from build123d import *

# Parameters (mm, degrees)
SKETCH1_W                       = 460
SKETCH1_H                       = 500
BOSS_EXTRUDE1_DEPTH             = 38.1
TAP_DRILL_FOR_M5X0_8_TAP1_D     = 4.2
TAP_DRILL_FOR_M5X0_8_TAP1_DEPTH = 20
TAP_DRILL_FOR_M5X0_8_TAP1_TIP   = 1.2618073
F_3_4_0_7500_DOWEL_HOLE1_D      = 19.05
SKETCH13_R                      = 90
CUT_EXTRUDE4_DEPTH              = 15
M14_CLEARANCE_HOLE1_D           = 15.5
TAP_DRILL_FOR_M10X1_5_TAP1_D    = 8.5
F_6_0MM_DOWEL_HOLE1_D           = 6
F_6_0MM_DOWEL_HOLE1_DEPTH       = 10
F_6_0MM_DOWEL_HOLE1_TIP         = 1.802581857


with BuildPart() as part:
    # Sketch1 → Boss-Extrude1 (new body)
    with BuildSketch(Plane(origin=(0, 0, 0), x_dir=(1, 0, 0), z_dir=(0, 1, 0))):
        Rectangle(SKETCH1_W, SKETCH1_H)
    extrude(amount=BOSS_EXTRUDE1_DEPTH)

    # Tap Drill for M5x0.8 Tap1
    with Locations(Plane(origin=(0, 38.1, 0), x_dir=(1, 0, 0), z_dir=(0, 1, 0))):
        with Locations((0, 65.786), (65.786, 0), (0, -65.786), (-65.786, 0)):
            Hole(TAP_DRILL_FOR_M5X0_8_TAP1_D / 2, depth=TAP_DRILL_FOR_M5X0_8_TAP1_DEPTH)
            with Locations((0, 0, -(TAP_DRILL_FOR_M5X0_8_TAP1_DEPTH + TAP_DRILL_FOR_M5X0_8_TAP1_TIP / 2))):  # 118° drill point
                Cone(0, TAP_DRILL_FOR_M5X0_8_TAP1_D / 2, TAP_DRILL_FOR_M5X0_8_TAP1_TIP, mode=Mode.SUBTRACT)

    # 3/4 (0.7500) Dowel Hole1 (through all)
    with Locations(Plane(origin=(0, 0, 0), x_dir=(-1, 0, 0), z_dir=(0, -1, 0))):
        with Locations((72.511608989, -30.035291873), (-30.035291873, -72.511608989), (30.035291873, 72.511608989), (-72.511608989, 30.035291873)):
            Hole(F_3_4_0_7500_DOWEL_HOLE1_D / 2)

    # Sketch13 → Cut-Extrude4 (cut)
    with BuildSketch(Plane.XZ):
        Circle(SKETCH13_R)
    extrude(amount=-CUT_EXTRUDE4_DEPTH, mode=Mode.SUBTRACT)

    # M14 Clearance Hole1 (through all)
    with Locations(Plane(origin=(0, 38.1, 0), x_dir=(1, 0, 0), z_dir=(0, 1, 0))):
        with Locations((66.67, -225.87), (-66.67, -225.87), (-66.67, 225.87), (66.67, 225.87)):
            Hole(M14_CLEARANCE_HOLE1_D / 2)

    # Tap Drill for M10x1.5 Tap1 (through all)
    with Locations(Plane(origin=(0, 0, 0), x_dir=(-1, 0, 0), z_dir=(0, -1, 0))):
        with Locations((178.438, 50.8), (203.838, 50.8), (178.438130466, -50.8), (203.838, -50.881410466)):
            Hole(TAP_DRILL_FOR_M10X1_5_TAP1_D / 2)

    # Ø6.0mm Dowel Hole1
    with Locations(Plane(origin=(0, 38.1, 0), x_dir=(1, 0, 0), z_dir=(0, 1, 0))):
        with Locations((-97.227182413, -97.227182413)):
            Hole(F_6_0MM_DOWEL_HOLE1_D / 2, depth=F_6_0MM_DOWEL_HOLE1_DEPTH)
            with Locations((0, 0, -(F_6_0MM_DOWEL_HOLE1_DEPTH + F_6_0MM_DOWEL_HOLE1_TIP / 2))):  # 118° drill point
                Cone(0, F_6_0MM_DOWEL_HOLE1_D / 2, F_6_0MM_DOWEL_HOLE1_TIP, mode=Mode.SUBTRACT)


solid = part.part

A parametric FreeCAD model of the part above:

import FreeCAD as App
import Part
import Sketcher
Q = App.Units.Quantity

doc = App.newDocument("Part")
body = doc.addObject("PartDesign::Body", "Body")

# Sketch on XZ plane
sketch1 = body.newObject("Sketcher::SketchObject", "Sketch")
sketch1.AttachmentSupport = (doc.getObject("XZ_Plane"), [""])
sketch1.MapMode = "FlatFace"
sketch1.addGeometry(Part.LineSegment(App.Vector(-230, -250, 0), App.Vector(-230, 250, 0)), False)
sketch1.addGeometry(Part.LineSegment(App.Vector(-230, 250, 0), App.Vector(230, 250, 0)), False)
sketch1.addGeometry(Part.LineSegment(App.Vector(230, 250, 0), App.Vector(230, -250, 0)), False)
sketch1.addGeometry(Part.LineSegment(App.Vector(230, -250, 0), App.Vector(-230, -250, 0)), False)
sketch1.addConstraint(Sketcher.Constraint("Coincident", 0, 2, 1, 1))
sketch1.addConstraint(Sketcher.Constraint("Coincident", 1, 2, 2, 1))
sketch1.addConstraint(Sketcher.Constraint("Coincident", 2, 2, 3, 1))
sketch1.addConstraint(Sketcher.Constraint("Coincident", 3, 2, 0, 1))
sketch1.addConstraint(Sketcher.Constraint("Vertical", 0))
sketch1.addConstraint(Sketcher.Constraint("Horizontal", 1))
sketch1.addConstraint(Sketcher.Constraint("Vertical", 2))
sketch1.addConstraint(Sketcher.Constraint("Horizontal", 3))
sketch1.addConstraint(Sketcher.Constraint("Symmetric", 0, 2, 2, 2, -1, 1))
sketch1.addConstraint(Sketcher.Constraint("DistanceX", 1, 1, 1, 2, Q("460 mm")))
sketch1.addConstraint(Sketcher.Constraint("DistanceY", 0, 1, 0, 2, Q("500 mm")))
pad1 = body.newObject("PartDesign::Pad", "Pad")
pad1.Profile = sketch1
pad1.Length = 38.1
pad1.Reversed = True

# Sketch on XZ plane
sketch2 = body.newObject("Sketcher::SketchObject", "Sketch001")
sketch2.AttachmentSupport = (doc.getObject("XZ_Plane"), [""])
sketch2.MapMode = "FlatFace"
sketch2.AttachmentOffset = App.Placement(App.Vector(0, 0, -38.1), App.Rotation())
sketch2.addGeometry(Part.Circle(App.Vector(0, -65.8, 0), App.Vector(0, 0, 1), 2.1), False)
sketch2.addGeometry(Part.Circle(App.Vector(65.8, 0, 0), App.Vector(0, 0, 1), 2.1), False)
sketch2.addGeometry(Part.Circle(App.Vector(0, 65.8, 0), App.Vector(0, 0, 1), 2.1), False)
sketch2.addGeometry(Part.Circle(App.Vector(-65.8, 0, 0), App.Vector(0, 0, 1), 2.1), False)
sketch2.addConstraint(Sketcher.Constraint("Equal", 0, 1))
sketch2.addConstraint(Sketcher.Constraint("Equal", 1, 2))
sketch2.addConstraint(Sketcher.Constraint("Equal", 2, 3))
sketch2.addConstraint(Sketcher.Constraint("Symmetric", 0, 3, 2, 3, -1, 1))
sketch2.addConstraint(Sketcher.Constraint("Symmetric", 1, 3, 3, 3, -1, 1))
sketch2.addConstraint(Sketcher.Constraint("PointOnObject", 0, 3, -2))
sketch2.addConstraint(Sketcher.Constraint("PointOnObject", 1, 3, -1))
sketch2.addConstraint(Sketcher.Constraint("Diameter", 0, Q("4.2 mm")))
sketch2.addConstraint(Sketcher.Constraint("DistanceY", 0, 3, -1, 1, Q("65.786 mm")))
sketch2.addConstraint(Sketcher.Constraint("DistanceX", -1, 1, 1, 3, Q("65.786 mm")))
doc.recompute()
hole = body.newObject("PartDesign::Hole", "Hole")
hole.Profile = sketch2
hole.ThreadType = "None"
hole.Diameter = 4.2
hole.DepthType = "Dimension"
hole.Depth = 20
hole.DrillPoint = "Angled"
hole.DrillPointAngle = 118
hole.Reversed = True

# Sketch on XZ plane
sketch3 = body.newObject("Sketcher::SketchObject", "Sketch002")
sketch3.AttachmentSupport = (doc.getObject("XZ_Plane"), [""])
sketch3.MapMode = "FlatFace"
sketch3.addGeometry(Part.Circle(App.Vector(-73, 30, 0), App.Vector(0, 0, 1), 10), False)
sketch3.addGeometry(Part.Circle(App.Vector(30, 73, 0), App.Vector(0, 0, 1), 10), False)
sketch3.addGeometry(Part.Circle(App.Vector(-30, -73, 0), App.Vector(0, 0, 1), 10), False)
sketch3.addGeometry(Part.Circle(App.Vector(73, -30, 0), App.Vector(0, 0, 1), 10), False)
sketch3.addConstraint(Sketcher.Constraint("Equal", 0, 1))
sketch3.addConstraint(Sketcher.Constraint("Equal", 1, 2))
sketch3.addConstraint(Sketcher.Constraint("Equal", 2, 3))
sketch3.addConstraint(Sketcher.Constraint("Symmetric", 1, 3, 2, 3, -1, 1))
sketch3.addConstraint(Sketcher.Constraint("Symmetric", 0, 3, 3, 3, -1, 1))
sketch3.addConstraint(Sketcher.Constraint("Diameter", 0, Q("19.05 mm")))
sketch3.addConstraint(Sketcher.Constraint("DistanceX", 0, 3, 1, 3, Q("102.546901 mm")))
sketch3.addConstraint(Sketcher.Constraint("DistanceY", 2, 3, 0, 3, Q("102.546901 mm")))
sketch3.addConstraint(Sketcher.Constraint("DistanceX", 0, 3, -1, 1, Q("72.511609 mm")))
sketch3.addConstraint(Sketcher.Constraint("DistanceY", -1, 1, 0, 3, Q("30.035292 mm")))
doc.recompute()
hole2 = body.newObject("PartDesign::Hole", "Hole001")
hole2.Profile = sketch3
hole2.ThreadType = "None"
hole2.Diameter = 19.05
hole2.DepthType = "ThroughAll"

# Sketch on XZ plane
sketch4 = body.newObject("Sketcher::SketchObject", "Sketch003")
sketch4.AttachmentSupport = (doc.getObject("XZ_Plane"), [""])
sketch4.MapMode = "FlatFace"
sketch4.addGeometry(Part.Circle(App.Vector(0, 0, 0), App.Vector(0, 0, 1), 90), False)
sketch4.addConstraint(Sketcher.Constraint("Coincident", 0, 3, -1, 1))
sketch4.addConstraint(Sketcher.Constraint("Diameter", 0, Q("180 mm")))
pocket1 = body.newObject("PartDesign::Pocket", "Pocket")
pocket1.Profile = sketch4
pocket1.Length = 15

# Sketch on XZ plane
sketch5 = body.newObject("Sketcher::SketchObject", "Sketch004")
sketch5.AttachmentSupport = (doc.getObject("XZ_Plane"), [""])
sketch5.MapMode = "FlatFace"
sketch5.AttachmentOffset = App.Placement(App.Vector(0, 0, -38.1), App.Rotation())
sketch5.addGeometry(Part.Circle(App.Vector(67, 226, 0), App.Vector(0, 0, 1), 8), False)
sketch5.addGeometry(Part.Circle(App.Vector(-67, 226, 0), App.Vector(0, 0, 1), 8), False)
sketch5.addGeometry(Part.Circle(App.Vector(-67, -226, 0), App.Vector(0, 0, 1), 8), False)
sketch5.addGeometry(Part.Circle(App.Vector(67, -226, 0), App.Vector(0, 0, 1), 8), False)
sketch5.addConstraint(Sketcher.Constraint("Equal", 0, 1))
sketch5.addConstraint(Sketcher.Constraint("Equal", 1, 2))
sketch5.addConstraint(Sketcher.Constraint("Equal", 2, 3))
sketch5.addConstraint(Sketcher.Constraint("Symmetric", 0, 3, 2, 3, -1, 1))
sketch5.addConstraint(Sketcher.Constraint("Symmetric", 1, 3, 3, 3, -1, 1))
sketch5.addConstraint(Sketcher.Constraint("Symmetric", 0, 3, 1, 3, -2))
sketch5.addConstraint(Sketcher.Constraint("Diameter", 0, Q("15.5 mm")))
sketch5.addConstraint(Sketcher.Constraint("DistanceX", -1, 1, 0, 3, Q("66.67 mm")))
sketch5.addConstraint(Sketcher.Constraint("DistanceY", -1, 1, 0, 3, Q("225.87 mm")))
doc.recompute()
hole3 = body.newObject("PartDesign::Hole", "Hole002")
hole3.Profile = sketch5
hole3.ThreadType = "None"
hole3.Diameter = 15.5
hole3.DepthType = "ThroughAll"
hole3.Reversed = True

# Sketch on XZ plane
sketch6 = body.newObject("Sketcher::SketchObject", "Sketch005")
sketch6.AttachmentSupport = (doc.getObject("XZ_Plane"), [""])
sketch6.MapMode = "FlatFace"
sketch6.addGeometry(Part.Circle(App.Vector(-178.4, -50.8, 0), App.Vector(0, 0, 1), 4.2), False)
sketch6.addGeometry(Part.Circle(App.Vector(-203.8, -50.8, 0), App.Vector(0, 0, 1), 4.2), False)
sketch6.addGeometry(Part.Circle(App.Vector(-178.4, 50.8, 0), App.Vector(0, 0, 1), 4.2), False)
sketch6.addGeometry(Part.Circle(App.Vector(-203.8, 50.9, 0), App.Vector(0, 0, 1), 4.2), False)
sketch6.addConstraint(Sketcher.Constraint("Equal", 0, 1))
sketch6.addConstraint(Sketcher.Constraint("Equal", 1, 2))
sketch6.addConstraint(Sketcher.Constraint("Equal", 2, 3))
sketch6.addConstraint(Sketcher.Constraint("Horizontal", 0, 3, 1, 3))
sketch6.addConstraint(Sketcher.Constraint("Vertical", 1, 3, 3, 3))
sketch6.addConstraint(Sketcher.Constraint("Diameter", 0, Q("8.5 mm")))
sketch6.addConstraint(Sketcher.Constraint("DistanceY", 0, 3, -1, 1, Q("50.8 mm")))
sketch6.addConstraint(Sketcher.Constraint("DistanceY", -1, 1, 2, 3, Q("50.8 mm")))
sketch6.addConstraint(Sketcher.Constraint("DistanceX", 1, 3, 0, 3, Q("25.4 mm")))
sketch6.addConstraint(Sketcher.Constraint("DistanceX", 0, 3, -1, 1, Q("178.438 mm")))
sketch6.addConstraint(Sketcher.Constraint("DistanceX", 2, 3, -1, 1, Q("178.43813 mm")))
sketch6.addConstraint(Sketcher.Constraint("DistanceY", -1, 1, 3, 3, Q("50.88141 mm")))
doc.recompute()
hole4 = body.newObject("PartDesign::Hole", "Hole003")
hole4.Profile = sketch6
hole4.ThreadType = "None"
hole4.Diameter = 8.5
hole4.DepthType = "ThroughAll"

# Sketch on XZ plane
sketch7 = body.newObject("Sketcher::SketchObject", "Sketch006")
sketch7.AttachmentSupport = (doc.getObject("XZ_Plane"), [""])
sketch7.MapMode = "FlatFace"
sketch7.AttachmentOffset = App.Placement(App.Vector(0, 0, -38.1), App.Rotation())
sketch7.addGeometry(Part.Circle(App.Vector(-97.2, 97.2, 0), App.Vector(0, 0, 1), 3), False)
sketch7.addConstraint(Sketcher.Constraint("Diameter", 0, Q("6 mm")))
sketch7.addConstraint(Sketcher.Constraint("DistanceX", 0, 3, -1, 1, Q("97.227182 mm")))
sketch7.addConstraint(Sketcher.Constraint("DistanceY", -1, 1, 0, 3, Q("97.227182 mm")))
doc.recompute()
hole5 = body.newObject("PartDesign::Hole", "Hole004")
hole5.Profile = sketch7
hole5.ThreadType = "None"
hole5.Diameter = 6
hole5.DepthType = "Dimension"
hole5.Depth = 10
hole5.DrillPoint = "Angled"
hole5.DrillPointAngle = 118
hole5.Reversed = True

doc.recompute()
